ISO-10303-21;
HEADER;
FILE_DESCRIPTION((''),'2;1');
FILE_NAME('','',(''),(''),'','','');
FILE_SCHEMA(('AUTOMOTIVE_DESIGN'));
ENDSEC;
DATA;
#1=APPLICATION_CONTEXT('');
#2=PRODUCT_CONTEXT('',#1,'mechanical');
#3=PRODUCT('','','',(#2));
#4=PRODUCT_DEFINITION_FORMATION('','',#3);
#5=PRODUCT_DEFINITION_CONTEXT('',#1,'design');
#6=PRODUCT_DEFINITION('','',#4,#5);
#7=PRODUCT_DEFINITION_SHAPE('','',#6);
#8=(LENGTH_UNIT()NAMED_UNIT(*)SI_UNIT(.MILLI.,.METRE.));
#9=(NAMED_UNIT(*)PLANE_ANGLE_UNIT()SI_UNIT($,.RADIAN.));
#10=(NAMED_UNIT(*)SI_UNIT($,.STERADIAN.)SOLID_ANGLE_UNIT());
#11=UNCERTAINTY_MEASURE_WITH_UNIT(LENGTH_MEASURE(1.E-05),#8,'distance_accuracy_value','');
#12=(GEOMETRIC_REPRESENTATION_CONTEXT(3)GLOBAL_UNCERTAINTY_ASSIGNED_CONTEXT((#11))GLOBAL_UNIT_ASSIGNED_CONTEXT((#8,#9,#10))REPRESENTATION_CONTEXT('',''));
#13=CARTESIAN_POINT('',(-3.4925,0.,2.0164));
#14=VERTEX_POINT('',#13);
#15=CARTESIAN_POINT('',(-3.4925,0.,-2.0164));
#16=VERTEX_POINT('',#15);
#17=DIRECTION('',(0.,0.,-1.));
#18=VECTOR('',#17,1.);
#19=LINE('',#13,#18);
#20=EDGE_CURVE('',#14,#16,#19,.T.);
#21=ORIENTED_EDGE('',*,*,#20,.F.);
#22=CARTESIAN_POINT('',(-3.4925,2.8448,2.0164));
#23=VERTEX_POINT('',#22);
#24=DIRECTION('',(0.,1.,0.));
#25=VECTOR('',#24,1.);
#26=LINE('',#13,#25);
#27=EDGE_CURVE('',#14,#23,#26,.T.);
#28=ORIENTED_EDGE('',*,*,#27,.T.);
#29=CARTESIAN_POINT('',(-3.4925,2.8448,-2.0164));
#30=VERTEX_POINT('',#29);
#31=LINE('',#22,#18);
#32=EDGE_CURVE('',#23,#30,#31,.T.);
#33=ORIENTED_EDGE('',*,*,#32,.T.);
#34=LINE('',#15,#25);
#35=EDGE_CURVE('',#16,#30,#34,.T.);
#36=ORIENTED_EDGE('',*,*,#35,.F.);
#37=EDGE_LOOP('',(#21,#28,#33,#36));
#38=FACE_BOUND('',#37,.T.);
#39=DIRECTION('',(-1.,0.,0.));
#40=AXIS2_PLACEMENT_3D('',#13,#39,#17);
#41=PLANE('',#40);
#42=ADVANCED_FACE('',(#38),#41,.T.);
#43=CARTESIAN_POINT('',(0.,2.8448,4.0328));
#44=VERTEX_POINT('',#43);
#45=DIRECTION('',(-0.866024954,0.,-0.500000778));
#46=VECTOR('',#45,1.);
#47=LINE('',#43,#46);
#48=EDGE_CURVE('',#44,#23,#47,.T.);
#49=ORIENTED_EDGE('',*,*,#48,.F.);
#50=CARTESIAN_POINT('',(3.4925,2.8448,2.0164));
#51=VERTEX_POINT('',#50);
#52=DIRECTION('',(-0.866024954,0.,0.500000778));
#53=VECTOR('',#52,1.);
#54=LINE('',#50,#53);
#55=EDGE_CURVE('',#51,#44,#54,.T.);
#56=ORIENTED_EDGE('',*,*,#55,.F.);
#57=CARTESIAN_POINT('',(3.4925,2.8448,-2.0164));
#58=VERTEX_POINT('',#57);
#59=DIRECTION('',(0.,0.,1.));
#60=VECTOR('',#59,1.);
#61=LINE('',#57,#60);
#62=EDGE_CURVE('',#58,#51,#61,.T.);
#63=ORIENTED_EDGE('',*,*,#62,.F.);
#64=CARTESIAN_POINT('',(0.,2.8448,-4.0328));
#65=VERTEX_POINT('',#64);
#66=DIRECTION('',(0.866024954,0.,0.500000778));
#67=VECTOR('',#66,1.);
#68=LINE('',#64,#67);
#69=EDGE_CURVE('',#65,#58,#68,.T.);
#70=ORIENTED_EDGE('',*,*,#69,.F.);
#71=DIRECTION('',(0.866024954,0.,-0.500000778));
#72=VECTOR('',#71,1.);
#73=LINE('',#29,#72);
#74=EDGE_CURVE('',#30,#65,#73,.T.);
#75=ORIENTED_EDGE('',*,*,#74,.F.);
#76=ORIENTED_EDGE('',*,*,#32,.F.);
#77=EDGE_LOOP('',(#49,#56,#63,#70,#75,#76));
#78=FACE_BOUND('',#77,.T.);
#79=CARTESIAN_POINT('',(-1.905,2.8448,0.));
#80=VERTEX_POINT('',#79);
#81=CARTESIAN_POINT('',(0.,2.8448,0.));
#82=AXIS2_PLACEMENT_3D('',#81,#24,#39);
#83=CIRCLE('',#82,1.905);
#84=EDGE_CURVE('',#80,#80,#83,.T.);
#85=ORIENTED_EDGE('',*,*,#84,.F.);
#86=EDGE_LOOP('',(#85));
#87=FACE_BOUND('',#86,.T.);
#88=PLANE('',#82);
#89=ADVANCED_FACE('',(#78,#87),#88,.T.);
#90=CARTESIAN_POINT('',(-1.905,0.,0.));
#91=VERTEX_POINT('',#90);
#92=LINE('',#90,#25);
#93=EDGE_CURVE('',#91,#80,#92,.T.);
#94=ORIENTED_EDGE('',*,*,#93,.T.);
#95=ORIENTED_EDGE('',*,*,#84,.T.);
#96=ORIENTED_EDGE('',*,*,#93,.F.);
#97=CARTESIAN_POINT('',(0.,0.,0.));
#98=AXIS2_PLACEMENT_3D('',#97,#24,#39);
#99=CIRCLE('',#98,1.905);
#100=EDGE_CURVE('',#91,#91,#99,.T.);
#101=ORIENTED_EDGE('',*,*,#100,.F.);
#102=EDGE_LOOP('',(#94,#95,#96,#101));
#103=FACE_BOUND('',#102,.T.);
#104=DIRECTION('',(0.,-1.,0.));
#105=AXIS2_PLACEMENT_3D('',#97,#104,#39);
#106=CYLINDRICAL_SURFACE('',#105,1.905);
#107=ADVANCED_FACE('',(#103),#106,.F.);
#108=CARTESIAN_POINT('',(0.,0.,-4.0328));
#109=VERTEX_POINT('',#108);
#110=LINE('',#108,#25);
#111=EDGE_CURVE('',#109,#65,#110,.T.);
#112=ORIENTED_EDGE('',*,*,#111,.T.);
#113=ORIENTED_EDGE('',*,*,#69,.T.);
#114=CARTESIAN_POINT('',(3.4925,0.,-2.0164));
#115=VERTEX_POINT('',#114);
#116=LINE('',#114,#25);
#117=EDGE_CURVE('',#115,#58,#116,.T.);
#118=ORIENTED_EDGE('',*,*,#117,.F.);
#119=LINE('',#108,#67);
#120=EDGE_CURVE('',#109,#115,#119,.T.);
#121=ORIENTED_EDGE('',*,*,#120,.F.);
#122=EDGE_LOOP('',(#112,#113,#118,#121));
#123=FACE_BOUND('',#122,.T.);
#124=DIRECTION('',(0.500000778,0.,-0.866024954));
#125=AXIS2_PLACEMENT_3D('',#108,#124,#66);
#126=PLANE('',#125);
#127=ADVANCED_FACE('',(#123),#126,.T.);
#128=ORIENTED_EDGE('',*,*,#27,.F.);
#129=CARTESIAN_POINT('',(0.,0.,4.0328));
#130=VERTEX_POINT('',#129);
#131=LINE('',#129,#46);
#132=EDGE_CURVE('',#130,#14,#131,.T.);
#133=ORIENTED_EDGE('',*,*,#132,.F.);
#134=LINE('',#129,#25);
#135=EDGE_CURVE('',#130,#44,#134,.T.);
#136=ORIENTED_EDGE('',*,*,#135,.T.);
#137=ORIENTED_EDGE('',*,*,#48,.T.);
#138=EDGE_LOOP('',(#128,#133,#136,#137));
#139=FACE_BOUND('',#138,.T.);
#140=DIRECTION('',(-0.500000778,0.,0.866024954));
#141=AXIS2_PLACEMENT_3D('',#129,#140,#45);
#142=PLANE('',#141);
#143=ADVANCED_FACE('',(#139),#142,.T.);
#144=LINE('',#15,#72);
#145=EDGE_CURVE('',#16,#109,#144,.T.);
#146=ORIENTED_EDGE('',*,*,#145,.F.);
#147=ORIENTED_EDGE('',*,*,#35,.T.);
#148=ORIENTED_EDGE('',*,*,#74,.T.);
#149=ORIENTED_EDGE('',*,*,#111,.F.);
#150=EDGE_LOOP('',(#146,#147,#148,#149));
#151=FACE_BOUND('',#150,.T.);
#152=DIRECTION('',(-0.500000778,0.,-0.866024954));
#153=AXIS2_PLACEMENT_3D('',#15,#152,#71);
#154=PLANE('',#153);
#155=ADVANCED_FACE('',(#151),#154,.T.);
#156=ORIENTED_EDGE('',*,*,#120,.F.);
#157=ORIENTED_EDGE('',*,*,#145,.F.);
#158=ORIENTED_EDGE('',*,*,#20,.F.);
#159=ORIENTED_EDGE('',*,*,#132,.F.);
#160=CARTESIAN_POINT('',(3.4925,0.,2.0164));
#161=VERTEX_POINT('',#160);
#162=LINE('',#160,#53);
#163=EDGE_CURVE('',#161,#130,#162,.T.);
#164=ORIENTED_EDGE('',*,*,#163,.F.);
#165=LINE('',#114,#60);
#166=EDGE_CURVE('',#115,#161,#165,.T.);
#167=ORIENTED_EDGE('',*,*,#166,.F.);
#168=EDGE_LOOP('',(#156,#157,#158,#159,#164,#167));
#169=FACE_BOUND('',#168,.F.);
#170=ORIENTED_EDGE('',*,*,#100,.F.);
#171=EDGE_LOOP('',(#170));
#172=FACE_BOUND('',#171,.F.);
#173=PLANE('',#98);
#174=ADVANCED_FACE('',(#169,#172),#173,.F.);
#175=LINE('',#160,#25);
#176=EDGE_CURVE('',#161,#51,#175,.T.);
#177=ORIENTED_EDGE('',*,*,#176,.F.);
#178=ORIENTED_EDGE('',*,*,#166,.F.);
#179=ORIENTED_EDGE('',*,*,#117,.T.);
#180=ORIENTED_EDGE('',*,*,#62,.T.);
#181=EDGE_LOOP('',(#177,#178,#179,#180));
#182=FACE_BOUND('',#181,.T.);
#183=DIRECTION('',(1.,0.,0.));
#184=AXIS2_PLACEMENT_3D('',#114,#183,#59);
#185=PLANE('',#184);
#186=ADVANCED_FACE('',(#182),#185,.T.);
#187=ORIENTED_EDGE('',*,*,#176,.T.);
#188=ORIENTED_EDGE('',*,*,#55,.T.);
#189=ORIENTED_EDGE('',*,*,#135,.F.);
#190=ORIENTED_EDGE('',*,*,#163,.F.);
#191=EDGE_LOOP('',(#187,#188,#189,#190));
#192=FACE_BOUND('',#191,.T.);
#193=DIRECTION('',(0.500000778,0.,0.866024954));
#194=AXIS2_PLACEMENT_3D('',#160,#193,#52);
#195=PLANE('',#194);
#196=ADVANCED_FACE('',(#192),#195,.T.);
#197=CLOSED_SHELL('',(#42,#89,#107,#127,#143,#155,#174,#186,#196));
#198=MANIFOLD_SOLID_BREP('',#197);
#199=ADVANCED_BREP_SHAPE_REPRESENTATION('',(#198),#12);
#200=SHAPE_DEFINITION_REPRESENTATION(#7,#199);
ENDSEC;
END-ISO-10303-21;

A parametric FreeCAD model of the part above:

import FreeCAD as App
import Part
import Sketcher

V = App.Vector
Q = App.Units.Quantity

doc = App.newDocument("Part")
body = doc.addObject("PartDesign::Body", "Body")

# Sketch on XZ plane
sketch1 = body.newObject("Sketcher::SketchObject", "Sketch")
sketch1.AttachmentSupport = (doc.getObject("XZ_Plane"), [""])
sketch1.MapMode = "FlatFace"
sketch1.addGeometry(Part.LineSegment(V(-3.5, 2, 0), V(0, 4, 0)), False)
sketch1.addGeometry(Part.LineSegment(V(0, 4, 0), V(3.5, 2, 0)), False)
sketch1.addGeometry(Part.LineSegment(V(3.5, 2, 0), V(3.5, -2, 0)), False)
sketch1.addGeometry(Part.LineSegment(V(3.5, -2, 0), V(0, -4, 0)), False)
sketch1.addGeometry(Part.LineSegment(V(0, -4, 0), V(-3.5, -2, 0)), False)
sketch1.addGeometry(Part.LineSegment(V(-3.5, -2, 0), V(-3.5, 2, 0)), False)
sketch1.addGeometry(Part.Circle(V(0, 0, 0), V(0, 0, 1), 1.9), False)
sketch1.addConstraint(Sketcher.Constraint("Coincident", 0, 2, 1, 1))
sketch1.addConstraint(Sketcher.Constraint("Coincident", 1, 2, 2, 1))
sketch1.addConstraint(Sketcher.Constraint("Coincident", 2, 2, 3, 1))
sketch1.addConstraint(Sketcher.Constraint("Coincident", 3, 2, 4, 1))
sketch1.addConstraint(Sketcher.Constraint("Coincident", 4, 2, 5, 1))
sketch1.addConstraint(Sketcher.Constraint("Coincident", 5, 2, 0, 1))
sketch1.addConstraint(Sketcher.Constraint("Vertical", 2))
sketch1.addConstraint(Sketcher.Constraint("Vertical", 5))
sketch1.addConstraint(Sketcher.Constraint("Coincident", 6, 3, -1, 1))
sketch1.addConstraint(Sketcher.Constraint("Symmetric", 0, 2, 3, 2, -1, 1))
sketch1.addConstraint(Sketcher.Constraint("Symmetric", 1, 2, 4, 2, -1, 1))
sketch1.addConstraint(Sketcher.Constraint("PointOnObject", 0, 2, -2))
sketch1.addConstraint(Sketcher.Constraint("Parallel", 0, 3))
sketch1.addConstraint(Sketcher.Constraint("Horizontal", 2, 2, 4, 2))
sketch1.addConstraint(Sketcher.Constraint("Diameter", 6, Q("0.15 in")))
sketch1.addConstraint(Sketcher.Constraint("Angle", 0, Q("30 deg")))
sketch1.addConstraint(Sketcher.Constraint("DistanceX", 4, 2, 2, 2, Q("0.275 in")))
sketch1.addConstraint(Sketcher.Constraint("DistanceY", 2, 2, 2, 1, 4.0328))
pad1 = body.newObject("PartDesign::Pad", "Pad")
pad1.Profile = sketch1
pad1.Length = Q("0.112 in")
pad1.Reversed = True

doc.recompute()
